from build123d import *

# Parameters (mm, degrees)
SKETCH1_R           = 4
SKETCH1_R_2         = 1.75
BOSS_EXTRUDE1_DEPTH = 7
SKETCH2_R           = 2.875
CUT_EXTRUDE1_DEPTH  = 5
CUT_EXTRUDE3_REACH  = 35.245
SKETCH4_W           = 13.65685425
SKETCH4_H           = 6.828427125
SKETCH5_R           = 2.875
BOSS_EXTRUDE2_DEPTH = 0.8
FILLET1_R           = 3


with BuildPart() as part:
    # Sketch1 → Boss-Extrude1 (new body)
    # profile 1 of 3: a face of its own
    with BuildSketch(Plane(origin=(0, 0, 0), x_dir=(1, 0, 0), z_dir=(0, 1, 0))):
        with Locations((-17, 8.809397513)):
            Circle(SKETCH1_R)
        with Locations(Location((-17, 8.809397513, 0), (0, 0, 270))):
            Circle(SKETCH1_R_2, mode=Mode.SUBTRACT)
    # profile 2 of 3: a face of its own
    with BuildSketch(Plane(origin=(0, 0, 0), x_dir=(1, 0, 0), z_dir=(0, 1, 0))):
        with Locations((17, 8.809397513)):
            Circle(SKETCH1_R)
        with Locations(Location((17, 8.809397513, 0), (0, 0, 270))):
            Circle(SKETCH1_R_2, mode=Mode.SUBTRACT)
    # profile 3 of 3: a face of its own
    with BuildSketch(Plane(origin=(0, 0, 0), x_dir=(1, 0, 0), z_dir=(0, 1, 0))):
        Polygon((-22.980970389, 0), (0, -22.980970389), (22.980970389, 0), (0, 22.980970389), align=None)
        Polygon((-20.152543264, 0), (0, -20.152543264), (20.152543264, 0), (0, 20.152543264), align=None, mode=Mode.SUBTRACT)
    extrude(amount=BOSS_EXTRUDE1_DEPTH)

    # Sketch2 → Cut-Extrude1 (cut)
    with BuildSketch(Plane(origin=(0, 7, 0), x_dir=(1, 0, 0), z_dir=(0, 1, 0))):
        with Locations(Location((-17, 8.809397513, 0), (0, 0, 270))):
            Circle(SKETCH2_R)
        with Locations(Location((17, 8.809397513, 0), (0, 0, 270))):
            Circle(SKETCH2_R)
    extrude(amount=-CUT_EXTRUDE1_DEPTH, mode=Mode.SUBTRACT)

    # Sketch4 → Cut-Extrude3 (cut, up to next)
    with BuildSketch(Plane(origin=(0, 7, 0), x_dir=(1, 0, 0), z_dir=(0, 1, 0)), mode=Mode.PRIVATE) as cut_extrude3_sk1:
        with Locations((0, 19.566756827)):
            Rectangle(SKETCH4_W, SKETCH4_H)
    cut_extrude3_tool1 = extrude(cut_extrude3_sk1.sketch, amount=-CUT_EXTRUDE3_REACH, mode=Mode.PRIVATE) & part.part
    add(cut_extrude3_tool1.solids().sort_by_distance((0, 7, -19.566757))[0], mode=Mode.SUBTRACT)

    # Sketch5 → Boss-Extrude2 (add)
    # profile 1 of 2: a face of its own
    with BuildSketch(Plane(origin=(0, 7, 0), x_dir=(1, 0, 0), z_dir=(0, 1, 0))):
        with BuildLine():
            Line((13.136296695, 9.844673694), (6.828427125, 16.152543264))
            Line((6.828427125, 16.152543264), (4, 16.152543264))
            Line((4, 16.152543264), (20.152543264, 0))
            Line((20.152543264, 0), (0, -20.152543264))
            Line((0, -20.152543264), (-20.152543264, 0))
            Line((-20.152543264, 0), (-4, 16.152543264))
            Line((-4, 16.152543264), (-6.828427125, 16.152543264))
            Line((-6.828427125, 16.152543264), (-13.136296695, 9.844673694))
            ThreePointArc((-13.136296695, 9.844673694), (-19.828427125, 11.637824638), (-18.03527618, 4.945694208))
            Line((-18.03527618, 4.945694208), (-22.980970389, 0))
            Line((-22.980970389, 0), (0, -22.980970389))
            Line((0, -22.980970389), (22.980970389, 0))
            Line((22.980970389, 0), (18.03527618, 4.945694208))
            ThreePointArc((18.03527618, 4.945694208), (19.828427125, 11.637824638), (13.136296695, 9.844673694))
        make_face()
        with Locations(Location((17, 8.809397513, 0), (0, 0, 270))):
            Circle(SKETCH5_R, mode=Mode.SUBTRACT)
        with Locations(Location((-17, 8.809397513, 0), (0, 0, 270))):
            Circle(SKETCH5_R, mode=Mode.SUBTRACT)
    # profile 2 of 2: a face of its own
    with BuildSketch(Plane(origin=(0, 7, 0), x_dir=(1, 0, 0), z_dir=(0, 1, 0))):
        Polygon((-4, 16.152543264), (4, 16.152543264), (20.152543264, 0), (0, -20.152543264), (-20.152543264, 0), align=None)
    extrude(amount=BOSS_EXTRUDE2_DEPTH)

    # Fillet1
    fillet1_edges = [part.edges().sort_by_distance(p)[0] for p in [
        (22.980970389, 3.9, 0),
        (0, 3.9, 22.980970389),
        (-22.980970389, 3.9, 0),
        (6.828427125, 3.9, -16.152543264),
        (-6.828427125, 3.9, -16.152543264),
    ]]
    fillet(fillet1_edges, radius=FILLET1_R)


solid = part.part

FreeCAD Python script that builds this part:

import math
import FreeCAD as App
import Part
import Sketcher
Q = App.Units.Quantity


def edges_at(feature, points):
    """Names of the edges that pass closest to the given points."""
    edges = feature.Shape.Edges
    near = lambda p: min(range(len(edges)), key=lambda i: edges[i].distToShape(Part.Vertex(*p))[0])
    return sorted({f"Edge{near(p) + 1}" for p in points})


def add_polygon(sketch, points):
    """Adds a closed chain of lines whose ends are joined by coincident constraints."""
    first, n = sketch.GeometryCount, len(points)
    for a, b in zip(points, points[1:] + points[:1]):
        sketch.addGeometry(Part.LineSegment(App.Vector(*a, 0), App.Vector(*b, 0)), False)
    for i in range(n):
        sketch.addConstraint(Sketcher.Constraint("Coincident", first + i, 2, first + (i + 1) % n, 1))

doc = App.newDocument("Part")
body = doc.addObject("PartDesign::Body", "Body")

# Sketch on XZ plane
sketch1 = body.newObject("Sketcher::SketchObject", "Sketch")
sketch1.AttachmentSupport = (doc.getObject("XZ_Plane"), [""])
sketch1.MapMode = "FlatFace"
sketch1.addGeometry(Part.LineSegment(App.Vector(0, -23, 0), App.Vector(-13.1, -9.8, 0)), False)  # 0
sketch1.addGeometry(Part.ArcOfCircle(Part.Circle(App.Vector(-17, -8.8, 0), App.Vector(0, 0, 1), 4), math.radians(105), math.radians(345)), False)  # 1
sketch1.addGeometry(Part.LineSegment(App.Vector(-18, -4.9, 0), App.Vector(-23, 0, 0)), False)  # 2
sketch1.addGeometry(Part.LineSegment(App.Vector(-23, 0, 0), App.Vector(0, 23, 0)), False)  # 3
sketch1.addGeometry(Part.LineSegment(App.Vector(0, 23, 0), App.Vector(23, 0, 0)), False)  # 4
sketch1.addGeometry(Part.LineSegment(App.Vector(23, 0, 0), App.Vector(18, -4.9, 0)), False)  # 5
sketch1.addGeometry(Part.ArcOfCircle(Part.Circle(App.Vector(17, -8.8, 0), App.Vector(0, 0, 1), 4), math.radians(-165), math.radians(75)), False)  # 6
sketch1.addGeometry(Part.LineSegment(App.Vector(13.1, -9.8, 0), App.Vector(0, -23, 0)), False)  # 7
add_polygon(sketch1, [(0, -20.2), (20.2, 0), (0, 20.2), (-20.2, 0)])  # lines 8-11
sketch1.addGeometry(Part.Circle(App.Vector(-17, -8.8, 0), App.Vector(0, 0, 1), 1.8), False)  # 12
sketch1.addGeometry(Part.Circle(App.Vector(17, -8.8, 0), App.Vector(0, 0, 1), 1.8), False)  # 13
sketch1.addConstraint([
    Sketcher.Constraint("Coincident", 0, 2, 1, 2),
    Sketcher.Constraint("Coincident", 1, 1, 2, 1),
    Sketcher.Constraint("Coincident", 2, 2, 3, 1),
    Sketcher.Constraint("Coincident", 3, 2, 4, 1),
    Sketcher.Constraint("Coincident", 4, 2, 5, 1),
    Sketcher.Constraint("Coincident", 5, 2, 6, 2),
    Sketcher.Constraint("Coincident", 6, 1, 7, 1),
    Sketcher.Constraint("Coincident", 7, 2, 0, 1),
    Sketcher.Constraint("Coincident", 12, 3, 1, 3),
    Sketcher.Constraint("Coincident", 13, 3, 6, 3),
    Sketcher.Constraint("Equal", 1, 6),
    Sketcher.Constraint("Equal", 12, 13),
    Sketcher.Constraint("Symmetric", 2, 2, 4, 2, -1, 1),
    Sketcher.Constraint("Symmetric", 3, 2, 7, 2, -1, 1),
    Sketcher.Constraint("Symmetric", 8, 2, 10, 2, -1, 1),
    Sketcher.Constraint("Symmetric", 9, 2, 11, 2, -1, 1),
    Sketcher.Constraint("Symmetric", 1, 3, 6, 3, -2),
    Sketcher.Constraint("PointOnObject", 2, 2, -1),
    Sketcher.Constraint("PointOnObject", 3, 2, -2),
    Sketcher.Constraint("PointOnObject", 8, 2, -1),
    Sketcher.Constraint("PointOnObject", 9, 2, -2),
    Sketcher.Constraint("Parallel", 0, 2),
    Sketcher.Constraint("Perpendicular", 2, 3),
    Sketcher.Constraint("Perpendicular", 3, 4),
    Sketcher.Constraint("Perpendicular", 4, 5),
    Sketcher.Constraint("Parallel", 5, 7),
    Sketcher.Constraint("Parallel", 7, 8),
    Sketcher.Constraint("Radius", 1, Q("4 mm")),
    Sketcher.Constraint("Diameter", 12, Q("3.5 mm")),
    Sketcher.Constraint("DistanceX", 1, 3, -1, 1, Q("17 mm")),
    Sketcher.Constraint("Distance", 3, Q("32.5 mm")),
    Sketcher.Constraint("Distance", 8, Q("28.5 mm")),
    Sketcher.Constraint("Distance", 0, Q("18.577529 mm")),
])
pad1 = body.newObject("PartDesign::Pad", "Pad")
pad1.Profile = sketch1
pad1.Length = 7
pad1.Reversed = True

# Sketch on XZ plane
sketch2 = body.newObject("Sketcher::SketchObject", "Sketch001")
sketch2.AttachmentSupport = (doc.getObject("XZ_Plane"), [""])
sketch2.MapMode = "FlatFace"
sketch2.AttachmentOffset = App.Placement(App.Vector(0, 0, -7), App.Rotation())
sketch2.addGeometry([
    Part.Circle(App.Vector(-17, -8.8, 0), App.Vector(0, 0, 1), 2.9),
    Part.Circle(App.Vector(17, -8.8, 0), App.Vector(0, 0, 1), 2.9),
], False)
sketch2.addConstraint([
    Sketcher.Constraint("Equal", 0, 1),
    Sketcher.Constraint("Symmetric", 0, 3, 1, 3, -2),
    Sketcher.Constraint("Diameter", 0, Q("5.75 mm")),
    Sketcher.Constraint("DistanceX", 0, 3, -1, 1, Q("17 mm")),
    Sketcher.Constraint("DistanceY", 0, 3, -1, 1, Q("8.809398 mm")),
])
pocket1 = body.newObject("PartDesign::Pocket", "Pocket")
pocket1.Profile = sketch2
pocket1.Length = 5
pocket1.Reversed = True

# Sketch on XZ plane
sketch3 = body.newObject("Sketcher::SketchObject", "Sketch002")
sketch3.AttachmentSupport = (doc.getObject("XZ_Plane"), [""])
sketch3.MapMode = "FlatFace"
sketch3.AttachmentOffset = App.Placement(App.Vector(0, 0, -7), App.Rotation())
add_polygon(sketch3, [(-7, -23), (-7, -16), (7, -16), (7, -23)])  # lines 0-3
sketch3.addConstraint([
    Sketcher.Constraint("Vertical", 0),
    Sketcher.Constraint("Horizontal", 1),
    Sketcher.Constraint("Vertical", 2),
    Sketcher.Constraint("Horizontal", 3),
    Sketcher.Constraint("DistanceX", 1, 1, 1, 2, Q("13.656854 mm")),
    Sketcher.Constraint("DistanceY", 0, 1, 0, 2, Q("6.828427 mm")),
    Sketcher.Constraint("DistanceY", 2, 2, -1, 1, Q("22.98097 mm")),
    Sketcher.Constraint("DistanceX", 0, 2, -1, 1, Q("6.828427 mm")),
])
pocket2 = body.newObject("PartDesign::Pocket", "Pocket001")
pocket2.Profile = sketch3
pocket2.Length = 7
pocket2.Reversed = True

# Sketch on XZ plane
sketch4 = body.newObject("Sketcher::SketchObject", "Sketch003")
sketch4.AttachmentSupport = (doc.getObject("XZ_Plane"), [""])
sketch4.MapMode = "FlatFace"
sketch4.AttachmentOffset = App.Placement(App.Vector(0, 0, -7), App.Rotation())
sketch4.addGeometry([
    Part.LineSegment(App.Vector(13.1, -9.8, 0), App.Vector(6.8, -16.2, 0)),  # 0
    Part.LineSegment(App.Vector(6.8, -16.2, 0), App.Vector(-6.8, -16.2, 0)),  # 1
    Part.LineSegment(App.Vector(-6.8, -16.2, 0), App.Vector(-13.1, -9.8, 0)),  # 2
    Part.ArcOfCircle(Part.Circle(App.Vector(-17, -8.8, 0), App.Vector(0, 0, 1), 4), math.radians(105), math.radians(345)),  # 3
    Part.LineSegment(App.Vector(-18, -4.9, 0), App.Vector(-23, 0, 0)),  # 4
    Part.LineSegment(App.Vector(-23, 0, 0), App.Vector(0, 23, 0)),  # 5
    Part.LineSegment(App.Vector(0, 23, 0), App.Vector(23, 0, 0)),  # 6
    Part.LineSegment(App.Vector(23, 0, 0), App.Vector(18, -4.9, 0)),  # 7
    Part.ArcOfCircle(Part.Circle(App.Vector(17, -8.8, 0), App.Vector(0, 0, 1), 4), math.radians(-165), math.radians(75)),  # 8
    Part.Circle(App.Vector(-17, -8.8, 0), App.Vector(0, 0, 1), 2.9),  # 9
    Part.Circle(App.Vector(17, -8.8, 0), App.Vector(0, 0, 1), 2.9),  # 10
], False)
sketch4.addConstraint([
    Sketcher.Constraint("Coincident", 0, 2, 1, 1),
    Sketcher.Constraint("Coincident", 1, 2, 2, 1),
    Sketcher.Constraint("Coincident", 2, 2, 3, 2),
    Sketcher.Constraint("Coincident", 3, 1, 4, 1),
    Sketcher.Constraint("Coincident", 4, 2, 5, 1),
    Sketcher.Constraint("Coincident", 5, 2, 6, 1),
    Sketcher.Constraint("Coincident", 6, 2, 7, 1),
    Sketcher.Constraint("Coincident", 7, 2, 8, 2),
    Sketcher.Constraint("Coincident", 8, 1, 0, 1),
    Sketcher.Constraint("Horizontal", 1),
    Sketcher.Constraint("Coincident", 9, 3, 3, 3),
    Sketcher.Constraint("Coincident", 10, 3, 8, 3),
    Sketcher.Constraint("Equal", 3, 8),
    Sketcher.Constraint("Equal", 9, 10),
    Sketcher.Constraint("Symmetric", 4, 2, 6, 2, -1, 1),
    Sketcher.Constraint("Symmetric", 3, 3, 8, 3, -2),
    Sketcher.Constraint("PointOnObject", 4, 2, -1),
    Sketcher.Constraint("PointOnObject", 5, 2, -2),
    Sketcher.Constraint("Perpendicular", 0, 2),
    Sketcher.Constraint("Parallel", 2, 4),
    Sketcher.Constraint("Perpendicular", 4, 5),
    Sketcher.Constraint("Perpendicular", 5, 6),
    Sketcher.Constraint("Perpendicular", 6, 7),
    Sketcher.Constraint("Horizontal", 2, 2, 8, 1),
    Sketcher.Constraint("Radius", 3, Q("4 mm")),
    Sketcher.Constraint("Diameter", 9, Q("5.75 mm")),
    Sketcher.Constraint("DistanceX", 3, 3, -1, 1, Q("17 mm")),
    Sketcher.Constraint("Distance", 5, Q("32.5 mm")),
    Sketcher.Constraint("DistanceX", 1, 2, 1, 1, Q("13.656854 mm")),
    Sketcher.Constraint("DistanceX", 2, 2, 1, 2, Q("6.30787 mm")),
    Sketcher.Constraint("DistanceX", 3, 1, 2, 2, Q("4.898979 mm")),
])
pad2 = body.newObject("PartDesign::Pad", "Pad001")
pad2.Profile = sketch4
pad2.Length = 0.8
pad2.Reversed = True
doc.recompute()

fillet = body.newObject("PartDesign::Fillet", "Fillet")
fillet.Base = (pad2, edges_at(pad2, [
    (22.981, 3.5, 0),
    (0, 3.9, 22.981),
    (-22.981, 3.5, 0),
    (6.828, 3.5, -16.153),
    (-6.828, 3.5, -16.153),
]))
fillet.Radius = 3

doc.recompute()
